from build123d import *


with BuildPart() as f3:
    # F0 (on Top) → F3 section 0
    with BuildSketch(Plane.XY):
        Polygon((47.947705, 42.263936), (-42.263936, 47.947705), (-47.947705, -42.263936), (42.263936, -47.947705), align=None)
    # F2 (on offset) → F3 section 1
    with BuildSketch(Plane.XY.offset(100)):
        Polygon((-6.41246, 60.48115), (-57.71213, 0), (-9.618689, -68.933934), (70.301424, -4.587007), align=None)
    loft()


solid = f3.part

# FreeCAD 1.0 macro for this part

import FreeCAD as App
import Part
import Sketcher

V = App.Vector
Q = App.Units.Quantity

doc = App.newDocument("Part")
body = doc.addObject("PartDesign::Body", "Body")

sketch1 = body.newObject("Sketcher::SketchObject", "Sketch")
sketch1.AttachmentSupport = (doc.getObject("XY_Plane"), [""])
sketch1.MapMode = "FlatFace"
sketch1.addGeometry(Part.LineSegment(V(48, 42, 0), V(-42, 48, 0)), False)
sketch1.addGeometry(Part.LineSegment(V(-42, 48, 0), V(-48, -42, 0)), False)
sketch1.addGeometry(Part.LineSegment(V(-48, -42, 0), V(42, -48, 0)), False)
sketch1.addGeometry(Part.LineSegment(V(42, -48, 0), V(48, 42, 0)), False)
sketch1.addConstraint(Sketcher.Constraint("Coincident", 0, 2, 1, 1))
sketch1.addConstraint(Sketcher.Constraint("Coincident", 1, 2, 2, 1))
sketch1.addConstraint(Sketcher.Constraint("Coincident", 2, 2, 3, 1))
sketch1.addConstraint(Sketcher.Constraint("Coincident", 3, 2, 0, 1))
sketch1.addConstraint(Sketcher.Constraint("Symmetric", 0, 2, 2, 2, -1, 1))
sketch1.addConstraint(Sketcher.Constraint("Symmetric", 1, 2, 3, 2, -1, 1))
sketch1.addConstraint(Sketcher.Constraint("Perpendicular", 0, 1))
sketch1.addConstraint(Sketcher.Constraint("Equal", 0, 1))
sketch1.addConstraint(Sketcher.Constraint("DistanceX", 1, 2, 0, 2, Q("5.683769 mm")))
sketch1.addConstraint(Sketcher.Constraint("DistanceY", 1, 2, 0, 2, Q("90.211641 mm")))

sketch2 = body.newObject("Sketcher::SketchObject", "Sketch001")
sketch2.AttachmentSupport = (doc.getObject("XY_Plane"), [""])
sketch2.MapMode = "FlatFace"
sketch2.AttachmentOffset = App.Placement(V(0, 0, 100), App.Rotation())
sketch2.addGeometry(Part.LineSegment(V(-6, 60, 0), V(-58, 0, 0)), False)
sketch2.addGeometry(Part.LineSegment(V(-58, 0, 0), V(-10, -69, 0)), False)
sketch2.addGeometry(Part.LineSegment(V(-10, -69, 0), V(70, -5, 0)), False)
sketch2.addGeometry(Part.LineSegment(V(70, -5, 0), V(-6, 60, 0)), False)
sketch2.addConstraint(Sketcher.Constraint("Coincident", 0, 2, 1, 1))
sketch2.addConstraint(Sketcher.Constraint("Coincident", 1, 2, 2, 1))
sketch2.addConstraint(Sketcher.Constraint("Coincident", 2, 2, 3, 1))
sketch2.addConstraint(Sketcher.Constraint("Coincident", 3, 2, 0, 1))
sketch2.addConstraint(Sketcher.Constraint("PointOnObject", 0, 2, -1))
sketch2.addConstraint(Sketcher.Constraint("Perpendicular", 0, 3))
sketch2.addConstraint(Sketcher.Constraint("Distance", 0, Q("79.30716 mm")))
sketch2.addConstraint(Sketcher.Constraint("Distance", 1, Q("84.052759 mm")))
sketch2.addConstraint(Sketcher.Constraint("Distance", 2, Q("102.604832 mm")))
sketch2.addConstraint(Sketcher.Constraint("Distance", 3, Q("100.592669 mm")))
sketch2.addConstraint(Sketcher.Constraint("DistanceX", 0, 2, -1, 1, Q("57.71213 mm")))
sketch2.addConstraint(Sketcher.Constraint("DistanceX", 1, 2, -1, 1, Q("9.618689 mm")))

additiveloft = body.newObject("PartDesign::AdditiveLoft", "AdditiveLoft")
additiveloft.Profile = sketch1
additiveloft.Sections = [sketch2]

doc.recompute()
